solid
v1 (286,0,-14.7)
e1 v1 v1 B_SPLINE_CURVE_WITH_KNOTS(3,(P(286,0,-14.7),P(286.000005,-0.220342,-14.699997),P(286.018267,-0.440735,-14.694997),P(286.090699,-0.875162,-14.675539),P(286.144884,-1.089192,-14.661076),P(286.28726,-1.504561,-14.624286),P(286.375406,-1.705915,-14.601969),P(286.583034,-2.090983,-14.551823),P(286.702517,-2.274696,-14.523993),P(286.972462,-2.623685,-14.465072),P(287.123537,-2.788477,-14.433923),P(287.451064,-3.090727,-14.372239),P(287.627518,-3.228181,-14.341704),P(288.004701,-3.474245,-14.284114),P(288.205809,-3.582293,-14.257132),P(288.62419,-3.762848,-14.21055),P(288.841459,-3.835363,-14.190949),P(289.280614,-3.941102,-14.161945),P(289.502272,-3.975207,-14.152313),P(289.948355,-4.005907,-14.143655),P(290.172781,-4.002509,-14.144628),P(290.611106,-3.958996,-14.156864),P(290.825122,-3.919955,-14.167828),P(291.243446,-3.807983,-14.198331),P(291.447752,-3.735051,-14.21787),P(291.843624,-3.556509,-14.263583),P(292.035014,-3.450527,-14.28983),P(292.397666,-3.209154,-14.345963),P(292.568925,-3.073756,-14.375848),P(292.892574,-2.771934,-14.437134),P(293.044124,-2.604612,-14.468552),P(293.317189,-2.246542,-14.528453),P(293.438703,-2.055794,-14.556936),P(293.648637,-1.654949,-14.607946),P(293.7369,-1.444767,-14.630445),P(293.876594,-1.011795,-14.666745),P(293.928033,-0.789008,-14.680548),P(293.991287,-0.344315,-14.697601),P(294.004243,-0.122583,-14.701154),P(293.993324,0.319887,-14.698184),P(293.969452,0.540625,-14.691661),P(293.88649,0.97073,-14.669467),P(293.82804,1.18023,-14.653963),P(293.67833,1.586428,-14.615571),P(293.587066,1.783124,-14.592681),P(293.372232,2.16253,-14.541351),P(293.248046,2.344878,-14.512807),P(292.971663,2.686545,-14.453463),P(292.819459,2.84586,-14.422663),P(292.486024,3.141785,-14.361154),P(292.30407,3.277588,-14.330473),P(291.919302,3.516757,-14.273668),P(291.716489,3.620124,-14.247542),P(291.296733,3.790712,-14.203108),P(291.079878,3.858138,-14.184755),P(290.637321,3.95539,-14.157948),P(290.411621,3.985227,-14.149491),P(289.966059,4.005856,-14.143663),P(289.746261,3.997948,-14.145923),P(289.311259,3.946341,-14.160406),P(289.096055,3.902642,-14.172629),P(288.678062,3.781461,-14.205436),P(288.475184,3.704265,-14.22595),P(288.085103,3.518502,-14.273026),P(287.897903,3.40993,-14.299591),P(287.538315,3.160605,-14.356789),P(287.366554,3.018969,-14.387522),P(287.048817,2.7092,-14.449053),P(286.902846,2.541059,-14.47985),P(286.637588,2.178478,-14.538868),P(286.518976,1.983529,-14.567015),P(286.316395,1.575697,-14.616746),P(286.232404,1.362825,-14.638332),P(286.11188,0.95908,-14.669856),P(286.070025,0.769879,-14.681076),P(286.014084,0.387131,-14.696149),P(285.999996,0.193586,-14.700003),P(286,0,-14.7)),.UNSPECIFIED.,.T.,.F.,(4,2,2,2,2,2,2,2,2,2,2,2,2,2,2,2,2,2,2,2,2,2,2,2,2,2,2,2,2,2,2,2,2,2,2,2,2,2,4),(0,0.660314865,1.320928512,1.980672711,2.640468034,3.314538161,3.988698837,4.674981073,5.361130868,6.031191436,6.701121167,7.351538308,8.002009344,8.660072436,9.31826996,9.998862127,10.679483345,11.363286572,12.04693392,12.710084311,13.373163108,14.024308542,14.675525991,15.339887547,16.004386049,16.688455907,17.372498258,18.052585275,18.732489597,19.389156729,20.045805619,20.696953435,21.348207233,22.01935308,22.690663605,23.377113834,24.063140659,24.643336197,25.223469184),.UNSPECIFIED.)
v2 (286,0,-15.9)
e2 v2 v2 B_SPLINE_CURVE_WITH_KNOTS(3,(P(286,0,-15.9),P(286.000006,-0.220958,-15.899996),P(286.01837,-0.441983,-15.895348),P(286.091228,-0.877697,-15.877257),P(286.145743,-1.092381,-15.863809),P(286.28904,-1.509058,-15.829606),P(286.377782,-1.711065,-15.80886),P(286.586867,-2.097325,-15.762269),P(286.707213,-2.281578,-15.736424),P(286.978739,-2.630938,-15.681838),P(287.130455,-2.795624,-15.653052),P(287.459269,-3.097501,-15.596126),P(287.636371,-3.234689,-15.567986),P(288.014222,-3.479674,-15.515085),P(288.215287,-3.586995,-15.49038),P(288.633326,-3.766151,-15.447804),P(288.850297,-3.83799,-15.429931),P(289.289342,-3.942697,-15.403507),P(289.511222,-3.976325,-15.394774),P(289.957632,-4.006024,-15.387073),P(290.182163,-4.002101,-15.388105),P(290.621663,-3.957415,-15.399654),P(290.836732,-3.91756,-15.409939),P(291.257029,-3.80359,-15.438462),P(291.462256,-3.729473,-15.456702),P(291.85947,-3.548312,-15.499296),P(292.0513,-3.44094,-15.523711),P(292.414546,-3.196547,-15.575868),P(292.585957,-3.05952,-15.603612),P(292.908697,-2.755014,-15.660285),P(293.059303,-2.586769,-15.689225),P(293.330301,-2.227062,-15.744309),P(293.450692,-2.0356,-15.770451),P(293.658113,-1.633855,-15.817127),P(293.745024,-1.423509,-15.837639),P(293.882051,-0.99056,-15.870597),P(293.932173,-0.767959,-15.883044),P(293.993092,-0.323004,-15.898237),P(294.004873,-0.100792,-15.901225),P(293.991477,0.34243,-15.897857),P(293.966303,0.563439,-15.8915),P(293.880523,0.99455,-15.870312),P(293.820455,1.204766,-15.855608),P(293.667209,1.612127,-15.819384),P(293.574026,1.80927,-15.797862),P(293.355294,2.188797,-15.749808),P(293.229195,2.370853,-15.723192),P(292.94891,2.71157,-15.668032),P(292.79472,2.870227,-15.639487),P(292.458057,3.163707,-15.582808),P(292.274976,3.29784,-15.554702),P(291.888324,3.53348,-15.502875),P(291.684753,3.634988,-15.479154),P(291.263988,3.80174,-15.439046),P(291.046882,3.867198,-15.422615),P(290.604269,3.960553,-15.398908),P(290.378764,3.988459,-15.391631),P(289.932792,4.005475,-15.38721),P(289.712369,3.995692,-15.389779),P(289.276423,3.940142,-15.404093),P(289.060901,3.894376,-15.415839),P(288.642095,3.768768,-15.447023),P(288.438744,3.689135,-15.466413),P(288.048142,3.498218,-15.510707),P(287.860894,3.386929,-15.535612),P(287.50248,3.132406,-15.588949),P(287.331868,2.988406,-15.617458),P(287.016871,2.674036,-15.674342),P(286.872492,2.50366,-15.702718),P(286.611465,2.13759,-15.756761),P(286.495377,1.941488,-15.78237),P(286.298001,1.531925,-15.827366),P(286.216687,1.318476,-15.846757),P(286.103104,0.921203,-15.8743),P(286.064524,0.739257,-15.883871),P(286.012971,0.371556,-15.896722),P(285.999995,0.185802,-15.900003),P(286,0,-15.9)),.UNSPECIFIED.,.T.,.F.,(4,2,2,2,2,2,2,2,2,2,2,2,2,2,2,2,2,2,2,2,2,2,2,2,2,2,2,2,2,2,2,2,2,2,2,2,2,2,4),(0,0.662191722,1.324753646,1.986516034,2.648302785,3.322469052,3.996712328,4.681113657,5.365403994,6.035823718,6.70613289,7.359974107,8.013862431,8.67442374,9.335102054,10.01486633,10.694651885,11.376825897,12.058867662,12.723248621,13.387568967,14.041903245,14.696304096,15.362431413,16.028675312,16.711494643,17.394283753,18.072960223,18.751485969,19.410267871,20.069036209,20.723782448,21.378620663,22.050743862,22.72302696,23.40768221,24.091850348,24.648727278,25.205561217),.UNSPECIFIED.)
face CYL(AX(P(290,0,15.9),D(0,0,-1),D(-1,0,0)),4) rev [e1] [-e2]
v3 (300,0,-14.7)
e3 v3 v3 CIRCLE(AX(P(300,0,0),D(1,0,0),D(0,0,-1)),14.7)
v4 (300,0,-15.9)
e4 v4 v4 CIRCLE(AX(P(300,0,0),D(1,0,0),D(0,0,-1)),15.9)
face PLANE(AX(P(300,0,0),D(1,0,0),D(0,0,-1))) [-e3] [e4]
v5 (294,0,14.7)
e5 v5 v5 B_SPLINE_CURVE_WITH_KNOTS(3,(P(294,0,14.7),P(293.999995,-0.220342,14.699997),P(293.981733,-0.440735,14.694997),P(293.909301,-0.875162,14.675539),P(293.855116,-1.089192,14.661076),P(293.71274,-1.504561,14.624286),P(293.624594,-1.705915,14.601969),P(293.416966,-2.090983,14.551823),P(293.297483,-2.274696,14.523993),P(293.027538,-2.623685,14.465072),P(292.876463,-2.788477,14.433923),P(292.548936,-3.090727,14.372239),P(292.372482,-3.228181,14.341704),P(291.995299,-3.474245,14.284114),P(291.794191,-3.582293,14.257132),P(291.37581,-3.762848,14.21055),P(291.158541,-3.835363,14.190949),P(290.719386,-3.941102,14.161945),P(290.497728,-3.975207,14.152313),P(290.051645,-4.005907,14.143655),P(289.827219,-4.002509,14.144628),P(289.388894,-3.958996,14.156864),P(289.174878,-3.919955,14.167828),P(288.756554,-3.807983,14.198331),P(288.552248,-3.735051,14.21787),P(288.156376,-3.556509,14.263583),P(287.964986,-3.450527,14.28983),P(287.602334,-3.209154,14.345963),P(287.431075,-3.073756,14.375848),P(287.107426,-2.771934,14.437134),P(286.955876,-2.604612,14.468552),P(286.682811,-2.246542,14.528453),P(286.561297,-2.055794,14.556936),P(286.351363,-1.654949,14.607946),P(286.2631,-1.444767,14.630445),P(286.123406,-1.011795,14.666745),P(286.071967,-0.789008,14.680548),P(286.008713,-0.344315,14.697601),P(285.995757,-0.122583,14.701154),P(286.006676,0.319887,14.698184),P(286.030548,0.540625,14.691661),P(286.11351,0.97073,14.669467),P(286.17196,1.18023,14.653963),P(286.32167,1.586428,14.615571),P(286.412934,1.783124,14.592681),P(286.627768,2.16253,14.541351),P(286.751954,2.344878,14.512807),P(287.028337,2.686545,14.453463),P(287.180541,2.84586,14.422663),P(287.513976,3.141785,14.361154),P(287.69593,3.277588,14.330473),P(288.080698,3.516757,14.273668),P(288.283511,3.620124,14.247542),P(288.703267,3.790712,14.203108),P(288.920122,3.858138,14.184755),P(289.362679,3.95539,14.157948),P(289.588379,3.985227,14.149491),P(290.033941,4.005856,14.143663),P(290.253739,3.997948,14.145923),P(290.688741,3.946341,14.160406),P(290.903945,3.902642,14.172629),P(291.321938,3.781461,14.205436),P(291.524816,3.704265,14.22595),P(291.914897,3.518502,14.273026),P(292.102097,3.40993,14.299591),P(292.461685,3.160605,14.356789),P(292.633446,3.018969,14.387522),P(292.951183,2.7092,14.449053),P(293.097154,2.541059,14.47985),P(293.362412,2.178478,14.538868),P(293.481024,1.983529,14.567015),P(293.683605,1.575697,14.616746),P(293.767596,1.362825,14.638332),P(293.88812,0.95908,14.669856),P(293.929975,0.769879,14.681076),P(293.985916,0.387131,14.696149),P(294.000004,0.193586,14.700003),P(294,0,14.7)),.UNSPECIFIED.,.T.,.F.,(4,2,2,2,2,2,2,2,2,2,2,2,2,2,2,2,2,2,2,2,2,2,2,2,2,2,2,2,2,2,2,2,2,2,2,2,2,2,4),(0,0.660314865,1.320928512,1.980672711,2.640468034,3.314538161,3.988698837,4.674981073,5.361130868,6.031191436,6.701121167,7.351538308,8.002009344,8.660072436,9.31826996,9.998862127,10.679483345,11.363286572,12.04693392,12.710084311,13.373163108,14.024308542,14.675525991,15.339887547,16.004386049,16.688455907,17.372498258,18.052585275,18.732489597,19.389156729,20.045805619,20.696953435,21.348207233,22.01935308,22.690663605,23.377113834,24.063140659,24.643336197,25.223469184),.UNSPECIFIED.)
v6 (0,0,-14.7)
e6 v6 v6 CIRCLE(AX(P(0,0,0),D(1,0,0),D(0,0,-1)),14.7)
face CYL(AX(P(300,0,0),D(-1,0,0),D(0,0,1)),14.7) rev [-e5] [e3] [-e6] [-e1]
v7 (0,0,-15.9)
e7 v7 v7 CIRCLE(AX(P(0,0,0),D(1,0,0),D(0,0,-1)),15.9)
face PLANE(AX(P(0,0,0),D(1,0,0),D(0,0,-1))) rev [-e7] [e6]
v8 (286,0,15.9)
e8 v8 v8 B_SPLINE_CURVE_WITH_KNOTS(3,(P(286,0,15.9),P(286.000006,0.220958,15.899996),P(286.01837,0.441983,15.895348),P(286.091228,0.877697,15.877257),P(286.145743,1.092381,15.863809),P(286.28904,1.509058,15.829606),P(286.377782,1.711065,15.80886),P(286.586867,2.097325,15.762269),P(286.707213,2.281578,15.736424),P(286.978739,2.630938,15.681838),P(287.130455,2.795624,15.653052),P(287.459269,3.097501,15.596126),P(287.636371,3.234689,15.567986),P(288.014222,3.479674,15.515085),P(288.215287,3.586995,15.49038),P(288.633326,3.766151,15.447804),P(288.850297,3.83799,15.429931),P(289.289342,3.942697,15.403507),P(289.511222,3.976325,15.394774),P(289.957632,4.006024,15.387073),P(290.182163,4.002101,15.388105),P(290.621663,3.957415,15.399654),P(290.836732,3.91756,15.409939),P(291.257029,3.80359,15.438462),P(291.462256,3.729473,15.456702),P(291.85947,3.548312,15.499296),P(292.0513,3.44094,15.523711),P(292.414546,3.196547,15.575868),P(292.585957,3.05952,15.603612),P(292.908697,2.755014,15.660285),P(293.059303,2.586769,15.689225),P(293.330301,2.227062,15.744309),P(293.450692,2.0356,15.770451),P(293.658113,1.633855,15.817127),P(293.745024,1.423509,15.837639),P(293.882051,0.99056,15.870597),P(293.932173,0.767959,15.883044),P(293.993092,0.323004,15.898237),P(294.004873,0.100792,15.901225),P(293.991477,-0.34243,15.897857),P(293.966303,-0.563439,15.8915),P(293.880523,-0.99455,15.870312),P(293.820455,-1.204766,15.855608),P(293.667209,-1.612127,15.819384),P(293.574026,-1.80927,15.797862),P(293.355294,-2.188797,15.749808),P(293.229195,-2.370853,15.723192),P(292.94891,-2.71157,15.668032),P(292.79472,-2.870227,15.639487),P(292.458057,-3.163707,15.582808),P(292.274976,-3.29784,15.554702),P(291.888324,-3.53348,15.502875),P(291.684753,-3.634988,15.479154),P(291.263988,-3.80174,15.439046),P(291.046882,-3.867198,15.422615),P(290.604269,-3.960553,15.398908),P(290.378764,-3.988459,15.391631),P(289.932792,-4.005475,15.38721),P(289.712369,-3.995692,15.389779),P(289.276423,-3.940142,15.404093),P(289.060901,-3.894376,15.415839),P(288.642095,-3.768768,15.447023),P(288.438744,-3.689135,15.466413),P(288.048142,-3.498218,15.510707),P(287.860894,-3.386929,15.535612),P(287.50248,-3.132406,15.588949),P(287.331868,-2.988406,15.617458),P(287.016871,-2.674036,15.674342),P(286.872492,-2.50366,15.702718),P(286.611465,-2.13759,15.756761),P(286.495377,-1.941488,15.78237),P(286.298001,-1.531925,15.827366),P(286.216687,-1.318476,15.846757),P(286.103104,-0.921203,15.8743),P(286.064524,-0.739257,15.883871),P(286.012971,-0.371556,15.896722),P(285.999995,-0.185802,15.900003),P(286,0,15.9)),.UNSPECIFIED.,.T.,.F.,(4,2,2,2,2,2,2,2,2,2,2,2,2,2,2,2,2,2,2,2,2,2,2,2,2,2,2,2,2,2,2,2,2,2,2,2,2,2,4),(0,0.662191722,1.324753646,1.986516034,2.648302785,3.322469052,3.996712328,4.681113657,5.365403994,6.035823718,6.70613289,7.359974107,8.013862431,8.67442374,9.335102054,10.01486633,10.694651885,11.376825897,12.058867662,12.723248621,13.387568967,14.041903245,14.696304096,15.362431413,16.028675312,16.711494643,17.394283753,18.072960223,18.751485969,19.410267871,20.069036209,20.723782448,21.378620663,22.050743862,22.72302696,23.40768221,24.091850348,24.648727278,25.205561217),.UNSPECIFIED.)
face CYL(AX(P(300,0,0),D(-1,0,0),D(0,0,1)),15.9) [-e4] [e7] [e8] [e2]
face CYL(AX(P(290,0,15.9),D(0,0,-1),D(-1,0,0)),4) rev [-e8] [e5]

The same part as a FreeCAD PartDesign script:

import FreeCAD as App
import Part
import Sketcher
Q = App.Units.Quantity

doc = App.newDocument("Part")
body = doc.addObject("PartDesign::Body", "Body")

# Sketch on YZ plane
sketch1 = doc.addObject("Sketcher::SketchObject", "Sketch")
body.addObject(sketch1)
sketch1.AttachmentSupport = (doc.YZ_Plane, [""])
sketch1.MapMode = "FlatFace"
sketch1.addGeometry([
    Part.Circle(App.Vector(0, 0, 0), App.Vector(0, 0, 1), 15.9),
    Part.Circle(App.Vector(0, 0, 0), App.Vector(0, 0, 1), 14.7),
], False)
sketch1.addConstraint([
    Sketcher.Constraint("Coincident", 0, 3, -1, 1),
    Sketcher.Constraint("Coincident", 1, 3, -1, 1),
    Sketcher.Constraint("Diameter", 0, Q("31.8 mm")),
    Sketcher.Constraint("Diameter", 1, Q("29.4 mm")),
])
pad1 = doc.addObject("PartDesign::Pad", "Pad")
body.addObject(pad1)
pad1.Profile = sketch1
pad1.Length = 300

# Sketch on XY plane
sketch2 = doc.addObject("Sketcher::SketchObject", "Sketch001")
body.addObject(sketch2)
sketch2.AttachmentSupport = (doc.XY_Plane, [""])
sketch2.MapMode = "FlatFace"
sketch2.AttachmentOffset = App.Placement(App.Vector(0, 0, -15.9), App.Rotation())
sketch2.addGeometry(Part.Circle(App.Vector(290, 0, 0), App.Vector(0, 0, 1), 4), False)
sketch2.addConstraint([
    Sketcher.Constraint("PointOnObject", 0, 3, -1),
    Sketcher.Constraint("Diameter", 0, Q("8 mm")),
    Sketcher.Constraint("DistanceX", -1, 1, 0, 3, Q("290 mm")),
])
pocket1 = doc.addObject("PartDesign::Pocket", "Pocket")
body.addObject(pocket1)
pocket1.Profile = sketch2
pocket1.Type = "ThroughAll"
pocket1.Reversed = True

doc.recompute()
